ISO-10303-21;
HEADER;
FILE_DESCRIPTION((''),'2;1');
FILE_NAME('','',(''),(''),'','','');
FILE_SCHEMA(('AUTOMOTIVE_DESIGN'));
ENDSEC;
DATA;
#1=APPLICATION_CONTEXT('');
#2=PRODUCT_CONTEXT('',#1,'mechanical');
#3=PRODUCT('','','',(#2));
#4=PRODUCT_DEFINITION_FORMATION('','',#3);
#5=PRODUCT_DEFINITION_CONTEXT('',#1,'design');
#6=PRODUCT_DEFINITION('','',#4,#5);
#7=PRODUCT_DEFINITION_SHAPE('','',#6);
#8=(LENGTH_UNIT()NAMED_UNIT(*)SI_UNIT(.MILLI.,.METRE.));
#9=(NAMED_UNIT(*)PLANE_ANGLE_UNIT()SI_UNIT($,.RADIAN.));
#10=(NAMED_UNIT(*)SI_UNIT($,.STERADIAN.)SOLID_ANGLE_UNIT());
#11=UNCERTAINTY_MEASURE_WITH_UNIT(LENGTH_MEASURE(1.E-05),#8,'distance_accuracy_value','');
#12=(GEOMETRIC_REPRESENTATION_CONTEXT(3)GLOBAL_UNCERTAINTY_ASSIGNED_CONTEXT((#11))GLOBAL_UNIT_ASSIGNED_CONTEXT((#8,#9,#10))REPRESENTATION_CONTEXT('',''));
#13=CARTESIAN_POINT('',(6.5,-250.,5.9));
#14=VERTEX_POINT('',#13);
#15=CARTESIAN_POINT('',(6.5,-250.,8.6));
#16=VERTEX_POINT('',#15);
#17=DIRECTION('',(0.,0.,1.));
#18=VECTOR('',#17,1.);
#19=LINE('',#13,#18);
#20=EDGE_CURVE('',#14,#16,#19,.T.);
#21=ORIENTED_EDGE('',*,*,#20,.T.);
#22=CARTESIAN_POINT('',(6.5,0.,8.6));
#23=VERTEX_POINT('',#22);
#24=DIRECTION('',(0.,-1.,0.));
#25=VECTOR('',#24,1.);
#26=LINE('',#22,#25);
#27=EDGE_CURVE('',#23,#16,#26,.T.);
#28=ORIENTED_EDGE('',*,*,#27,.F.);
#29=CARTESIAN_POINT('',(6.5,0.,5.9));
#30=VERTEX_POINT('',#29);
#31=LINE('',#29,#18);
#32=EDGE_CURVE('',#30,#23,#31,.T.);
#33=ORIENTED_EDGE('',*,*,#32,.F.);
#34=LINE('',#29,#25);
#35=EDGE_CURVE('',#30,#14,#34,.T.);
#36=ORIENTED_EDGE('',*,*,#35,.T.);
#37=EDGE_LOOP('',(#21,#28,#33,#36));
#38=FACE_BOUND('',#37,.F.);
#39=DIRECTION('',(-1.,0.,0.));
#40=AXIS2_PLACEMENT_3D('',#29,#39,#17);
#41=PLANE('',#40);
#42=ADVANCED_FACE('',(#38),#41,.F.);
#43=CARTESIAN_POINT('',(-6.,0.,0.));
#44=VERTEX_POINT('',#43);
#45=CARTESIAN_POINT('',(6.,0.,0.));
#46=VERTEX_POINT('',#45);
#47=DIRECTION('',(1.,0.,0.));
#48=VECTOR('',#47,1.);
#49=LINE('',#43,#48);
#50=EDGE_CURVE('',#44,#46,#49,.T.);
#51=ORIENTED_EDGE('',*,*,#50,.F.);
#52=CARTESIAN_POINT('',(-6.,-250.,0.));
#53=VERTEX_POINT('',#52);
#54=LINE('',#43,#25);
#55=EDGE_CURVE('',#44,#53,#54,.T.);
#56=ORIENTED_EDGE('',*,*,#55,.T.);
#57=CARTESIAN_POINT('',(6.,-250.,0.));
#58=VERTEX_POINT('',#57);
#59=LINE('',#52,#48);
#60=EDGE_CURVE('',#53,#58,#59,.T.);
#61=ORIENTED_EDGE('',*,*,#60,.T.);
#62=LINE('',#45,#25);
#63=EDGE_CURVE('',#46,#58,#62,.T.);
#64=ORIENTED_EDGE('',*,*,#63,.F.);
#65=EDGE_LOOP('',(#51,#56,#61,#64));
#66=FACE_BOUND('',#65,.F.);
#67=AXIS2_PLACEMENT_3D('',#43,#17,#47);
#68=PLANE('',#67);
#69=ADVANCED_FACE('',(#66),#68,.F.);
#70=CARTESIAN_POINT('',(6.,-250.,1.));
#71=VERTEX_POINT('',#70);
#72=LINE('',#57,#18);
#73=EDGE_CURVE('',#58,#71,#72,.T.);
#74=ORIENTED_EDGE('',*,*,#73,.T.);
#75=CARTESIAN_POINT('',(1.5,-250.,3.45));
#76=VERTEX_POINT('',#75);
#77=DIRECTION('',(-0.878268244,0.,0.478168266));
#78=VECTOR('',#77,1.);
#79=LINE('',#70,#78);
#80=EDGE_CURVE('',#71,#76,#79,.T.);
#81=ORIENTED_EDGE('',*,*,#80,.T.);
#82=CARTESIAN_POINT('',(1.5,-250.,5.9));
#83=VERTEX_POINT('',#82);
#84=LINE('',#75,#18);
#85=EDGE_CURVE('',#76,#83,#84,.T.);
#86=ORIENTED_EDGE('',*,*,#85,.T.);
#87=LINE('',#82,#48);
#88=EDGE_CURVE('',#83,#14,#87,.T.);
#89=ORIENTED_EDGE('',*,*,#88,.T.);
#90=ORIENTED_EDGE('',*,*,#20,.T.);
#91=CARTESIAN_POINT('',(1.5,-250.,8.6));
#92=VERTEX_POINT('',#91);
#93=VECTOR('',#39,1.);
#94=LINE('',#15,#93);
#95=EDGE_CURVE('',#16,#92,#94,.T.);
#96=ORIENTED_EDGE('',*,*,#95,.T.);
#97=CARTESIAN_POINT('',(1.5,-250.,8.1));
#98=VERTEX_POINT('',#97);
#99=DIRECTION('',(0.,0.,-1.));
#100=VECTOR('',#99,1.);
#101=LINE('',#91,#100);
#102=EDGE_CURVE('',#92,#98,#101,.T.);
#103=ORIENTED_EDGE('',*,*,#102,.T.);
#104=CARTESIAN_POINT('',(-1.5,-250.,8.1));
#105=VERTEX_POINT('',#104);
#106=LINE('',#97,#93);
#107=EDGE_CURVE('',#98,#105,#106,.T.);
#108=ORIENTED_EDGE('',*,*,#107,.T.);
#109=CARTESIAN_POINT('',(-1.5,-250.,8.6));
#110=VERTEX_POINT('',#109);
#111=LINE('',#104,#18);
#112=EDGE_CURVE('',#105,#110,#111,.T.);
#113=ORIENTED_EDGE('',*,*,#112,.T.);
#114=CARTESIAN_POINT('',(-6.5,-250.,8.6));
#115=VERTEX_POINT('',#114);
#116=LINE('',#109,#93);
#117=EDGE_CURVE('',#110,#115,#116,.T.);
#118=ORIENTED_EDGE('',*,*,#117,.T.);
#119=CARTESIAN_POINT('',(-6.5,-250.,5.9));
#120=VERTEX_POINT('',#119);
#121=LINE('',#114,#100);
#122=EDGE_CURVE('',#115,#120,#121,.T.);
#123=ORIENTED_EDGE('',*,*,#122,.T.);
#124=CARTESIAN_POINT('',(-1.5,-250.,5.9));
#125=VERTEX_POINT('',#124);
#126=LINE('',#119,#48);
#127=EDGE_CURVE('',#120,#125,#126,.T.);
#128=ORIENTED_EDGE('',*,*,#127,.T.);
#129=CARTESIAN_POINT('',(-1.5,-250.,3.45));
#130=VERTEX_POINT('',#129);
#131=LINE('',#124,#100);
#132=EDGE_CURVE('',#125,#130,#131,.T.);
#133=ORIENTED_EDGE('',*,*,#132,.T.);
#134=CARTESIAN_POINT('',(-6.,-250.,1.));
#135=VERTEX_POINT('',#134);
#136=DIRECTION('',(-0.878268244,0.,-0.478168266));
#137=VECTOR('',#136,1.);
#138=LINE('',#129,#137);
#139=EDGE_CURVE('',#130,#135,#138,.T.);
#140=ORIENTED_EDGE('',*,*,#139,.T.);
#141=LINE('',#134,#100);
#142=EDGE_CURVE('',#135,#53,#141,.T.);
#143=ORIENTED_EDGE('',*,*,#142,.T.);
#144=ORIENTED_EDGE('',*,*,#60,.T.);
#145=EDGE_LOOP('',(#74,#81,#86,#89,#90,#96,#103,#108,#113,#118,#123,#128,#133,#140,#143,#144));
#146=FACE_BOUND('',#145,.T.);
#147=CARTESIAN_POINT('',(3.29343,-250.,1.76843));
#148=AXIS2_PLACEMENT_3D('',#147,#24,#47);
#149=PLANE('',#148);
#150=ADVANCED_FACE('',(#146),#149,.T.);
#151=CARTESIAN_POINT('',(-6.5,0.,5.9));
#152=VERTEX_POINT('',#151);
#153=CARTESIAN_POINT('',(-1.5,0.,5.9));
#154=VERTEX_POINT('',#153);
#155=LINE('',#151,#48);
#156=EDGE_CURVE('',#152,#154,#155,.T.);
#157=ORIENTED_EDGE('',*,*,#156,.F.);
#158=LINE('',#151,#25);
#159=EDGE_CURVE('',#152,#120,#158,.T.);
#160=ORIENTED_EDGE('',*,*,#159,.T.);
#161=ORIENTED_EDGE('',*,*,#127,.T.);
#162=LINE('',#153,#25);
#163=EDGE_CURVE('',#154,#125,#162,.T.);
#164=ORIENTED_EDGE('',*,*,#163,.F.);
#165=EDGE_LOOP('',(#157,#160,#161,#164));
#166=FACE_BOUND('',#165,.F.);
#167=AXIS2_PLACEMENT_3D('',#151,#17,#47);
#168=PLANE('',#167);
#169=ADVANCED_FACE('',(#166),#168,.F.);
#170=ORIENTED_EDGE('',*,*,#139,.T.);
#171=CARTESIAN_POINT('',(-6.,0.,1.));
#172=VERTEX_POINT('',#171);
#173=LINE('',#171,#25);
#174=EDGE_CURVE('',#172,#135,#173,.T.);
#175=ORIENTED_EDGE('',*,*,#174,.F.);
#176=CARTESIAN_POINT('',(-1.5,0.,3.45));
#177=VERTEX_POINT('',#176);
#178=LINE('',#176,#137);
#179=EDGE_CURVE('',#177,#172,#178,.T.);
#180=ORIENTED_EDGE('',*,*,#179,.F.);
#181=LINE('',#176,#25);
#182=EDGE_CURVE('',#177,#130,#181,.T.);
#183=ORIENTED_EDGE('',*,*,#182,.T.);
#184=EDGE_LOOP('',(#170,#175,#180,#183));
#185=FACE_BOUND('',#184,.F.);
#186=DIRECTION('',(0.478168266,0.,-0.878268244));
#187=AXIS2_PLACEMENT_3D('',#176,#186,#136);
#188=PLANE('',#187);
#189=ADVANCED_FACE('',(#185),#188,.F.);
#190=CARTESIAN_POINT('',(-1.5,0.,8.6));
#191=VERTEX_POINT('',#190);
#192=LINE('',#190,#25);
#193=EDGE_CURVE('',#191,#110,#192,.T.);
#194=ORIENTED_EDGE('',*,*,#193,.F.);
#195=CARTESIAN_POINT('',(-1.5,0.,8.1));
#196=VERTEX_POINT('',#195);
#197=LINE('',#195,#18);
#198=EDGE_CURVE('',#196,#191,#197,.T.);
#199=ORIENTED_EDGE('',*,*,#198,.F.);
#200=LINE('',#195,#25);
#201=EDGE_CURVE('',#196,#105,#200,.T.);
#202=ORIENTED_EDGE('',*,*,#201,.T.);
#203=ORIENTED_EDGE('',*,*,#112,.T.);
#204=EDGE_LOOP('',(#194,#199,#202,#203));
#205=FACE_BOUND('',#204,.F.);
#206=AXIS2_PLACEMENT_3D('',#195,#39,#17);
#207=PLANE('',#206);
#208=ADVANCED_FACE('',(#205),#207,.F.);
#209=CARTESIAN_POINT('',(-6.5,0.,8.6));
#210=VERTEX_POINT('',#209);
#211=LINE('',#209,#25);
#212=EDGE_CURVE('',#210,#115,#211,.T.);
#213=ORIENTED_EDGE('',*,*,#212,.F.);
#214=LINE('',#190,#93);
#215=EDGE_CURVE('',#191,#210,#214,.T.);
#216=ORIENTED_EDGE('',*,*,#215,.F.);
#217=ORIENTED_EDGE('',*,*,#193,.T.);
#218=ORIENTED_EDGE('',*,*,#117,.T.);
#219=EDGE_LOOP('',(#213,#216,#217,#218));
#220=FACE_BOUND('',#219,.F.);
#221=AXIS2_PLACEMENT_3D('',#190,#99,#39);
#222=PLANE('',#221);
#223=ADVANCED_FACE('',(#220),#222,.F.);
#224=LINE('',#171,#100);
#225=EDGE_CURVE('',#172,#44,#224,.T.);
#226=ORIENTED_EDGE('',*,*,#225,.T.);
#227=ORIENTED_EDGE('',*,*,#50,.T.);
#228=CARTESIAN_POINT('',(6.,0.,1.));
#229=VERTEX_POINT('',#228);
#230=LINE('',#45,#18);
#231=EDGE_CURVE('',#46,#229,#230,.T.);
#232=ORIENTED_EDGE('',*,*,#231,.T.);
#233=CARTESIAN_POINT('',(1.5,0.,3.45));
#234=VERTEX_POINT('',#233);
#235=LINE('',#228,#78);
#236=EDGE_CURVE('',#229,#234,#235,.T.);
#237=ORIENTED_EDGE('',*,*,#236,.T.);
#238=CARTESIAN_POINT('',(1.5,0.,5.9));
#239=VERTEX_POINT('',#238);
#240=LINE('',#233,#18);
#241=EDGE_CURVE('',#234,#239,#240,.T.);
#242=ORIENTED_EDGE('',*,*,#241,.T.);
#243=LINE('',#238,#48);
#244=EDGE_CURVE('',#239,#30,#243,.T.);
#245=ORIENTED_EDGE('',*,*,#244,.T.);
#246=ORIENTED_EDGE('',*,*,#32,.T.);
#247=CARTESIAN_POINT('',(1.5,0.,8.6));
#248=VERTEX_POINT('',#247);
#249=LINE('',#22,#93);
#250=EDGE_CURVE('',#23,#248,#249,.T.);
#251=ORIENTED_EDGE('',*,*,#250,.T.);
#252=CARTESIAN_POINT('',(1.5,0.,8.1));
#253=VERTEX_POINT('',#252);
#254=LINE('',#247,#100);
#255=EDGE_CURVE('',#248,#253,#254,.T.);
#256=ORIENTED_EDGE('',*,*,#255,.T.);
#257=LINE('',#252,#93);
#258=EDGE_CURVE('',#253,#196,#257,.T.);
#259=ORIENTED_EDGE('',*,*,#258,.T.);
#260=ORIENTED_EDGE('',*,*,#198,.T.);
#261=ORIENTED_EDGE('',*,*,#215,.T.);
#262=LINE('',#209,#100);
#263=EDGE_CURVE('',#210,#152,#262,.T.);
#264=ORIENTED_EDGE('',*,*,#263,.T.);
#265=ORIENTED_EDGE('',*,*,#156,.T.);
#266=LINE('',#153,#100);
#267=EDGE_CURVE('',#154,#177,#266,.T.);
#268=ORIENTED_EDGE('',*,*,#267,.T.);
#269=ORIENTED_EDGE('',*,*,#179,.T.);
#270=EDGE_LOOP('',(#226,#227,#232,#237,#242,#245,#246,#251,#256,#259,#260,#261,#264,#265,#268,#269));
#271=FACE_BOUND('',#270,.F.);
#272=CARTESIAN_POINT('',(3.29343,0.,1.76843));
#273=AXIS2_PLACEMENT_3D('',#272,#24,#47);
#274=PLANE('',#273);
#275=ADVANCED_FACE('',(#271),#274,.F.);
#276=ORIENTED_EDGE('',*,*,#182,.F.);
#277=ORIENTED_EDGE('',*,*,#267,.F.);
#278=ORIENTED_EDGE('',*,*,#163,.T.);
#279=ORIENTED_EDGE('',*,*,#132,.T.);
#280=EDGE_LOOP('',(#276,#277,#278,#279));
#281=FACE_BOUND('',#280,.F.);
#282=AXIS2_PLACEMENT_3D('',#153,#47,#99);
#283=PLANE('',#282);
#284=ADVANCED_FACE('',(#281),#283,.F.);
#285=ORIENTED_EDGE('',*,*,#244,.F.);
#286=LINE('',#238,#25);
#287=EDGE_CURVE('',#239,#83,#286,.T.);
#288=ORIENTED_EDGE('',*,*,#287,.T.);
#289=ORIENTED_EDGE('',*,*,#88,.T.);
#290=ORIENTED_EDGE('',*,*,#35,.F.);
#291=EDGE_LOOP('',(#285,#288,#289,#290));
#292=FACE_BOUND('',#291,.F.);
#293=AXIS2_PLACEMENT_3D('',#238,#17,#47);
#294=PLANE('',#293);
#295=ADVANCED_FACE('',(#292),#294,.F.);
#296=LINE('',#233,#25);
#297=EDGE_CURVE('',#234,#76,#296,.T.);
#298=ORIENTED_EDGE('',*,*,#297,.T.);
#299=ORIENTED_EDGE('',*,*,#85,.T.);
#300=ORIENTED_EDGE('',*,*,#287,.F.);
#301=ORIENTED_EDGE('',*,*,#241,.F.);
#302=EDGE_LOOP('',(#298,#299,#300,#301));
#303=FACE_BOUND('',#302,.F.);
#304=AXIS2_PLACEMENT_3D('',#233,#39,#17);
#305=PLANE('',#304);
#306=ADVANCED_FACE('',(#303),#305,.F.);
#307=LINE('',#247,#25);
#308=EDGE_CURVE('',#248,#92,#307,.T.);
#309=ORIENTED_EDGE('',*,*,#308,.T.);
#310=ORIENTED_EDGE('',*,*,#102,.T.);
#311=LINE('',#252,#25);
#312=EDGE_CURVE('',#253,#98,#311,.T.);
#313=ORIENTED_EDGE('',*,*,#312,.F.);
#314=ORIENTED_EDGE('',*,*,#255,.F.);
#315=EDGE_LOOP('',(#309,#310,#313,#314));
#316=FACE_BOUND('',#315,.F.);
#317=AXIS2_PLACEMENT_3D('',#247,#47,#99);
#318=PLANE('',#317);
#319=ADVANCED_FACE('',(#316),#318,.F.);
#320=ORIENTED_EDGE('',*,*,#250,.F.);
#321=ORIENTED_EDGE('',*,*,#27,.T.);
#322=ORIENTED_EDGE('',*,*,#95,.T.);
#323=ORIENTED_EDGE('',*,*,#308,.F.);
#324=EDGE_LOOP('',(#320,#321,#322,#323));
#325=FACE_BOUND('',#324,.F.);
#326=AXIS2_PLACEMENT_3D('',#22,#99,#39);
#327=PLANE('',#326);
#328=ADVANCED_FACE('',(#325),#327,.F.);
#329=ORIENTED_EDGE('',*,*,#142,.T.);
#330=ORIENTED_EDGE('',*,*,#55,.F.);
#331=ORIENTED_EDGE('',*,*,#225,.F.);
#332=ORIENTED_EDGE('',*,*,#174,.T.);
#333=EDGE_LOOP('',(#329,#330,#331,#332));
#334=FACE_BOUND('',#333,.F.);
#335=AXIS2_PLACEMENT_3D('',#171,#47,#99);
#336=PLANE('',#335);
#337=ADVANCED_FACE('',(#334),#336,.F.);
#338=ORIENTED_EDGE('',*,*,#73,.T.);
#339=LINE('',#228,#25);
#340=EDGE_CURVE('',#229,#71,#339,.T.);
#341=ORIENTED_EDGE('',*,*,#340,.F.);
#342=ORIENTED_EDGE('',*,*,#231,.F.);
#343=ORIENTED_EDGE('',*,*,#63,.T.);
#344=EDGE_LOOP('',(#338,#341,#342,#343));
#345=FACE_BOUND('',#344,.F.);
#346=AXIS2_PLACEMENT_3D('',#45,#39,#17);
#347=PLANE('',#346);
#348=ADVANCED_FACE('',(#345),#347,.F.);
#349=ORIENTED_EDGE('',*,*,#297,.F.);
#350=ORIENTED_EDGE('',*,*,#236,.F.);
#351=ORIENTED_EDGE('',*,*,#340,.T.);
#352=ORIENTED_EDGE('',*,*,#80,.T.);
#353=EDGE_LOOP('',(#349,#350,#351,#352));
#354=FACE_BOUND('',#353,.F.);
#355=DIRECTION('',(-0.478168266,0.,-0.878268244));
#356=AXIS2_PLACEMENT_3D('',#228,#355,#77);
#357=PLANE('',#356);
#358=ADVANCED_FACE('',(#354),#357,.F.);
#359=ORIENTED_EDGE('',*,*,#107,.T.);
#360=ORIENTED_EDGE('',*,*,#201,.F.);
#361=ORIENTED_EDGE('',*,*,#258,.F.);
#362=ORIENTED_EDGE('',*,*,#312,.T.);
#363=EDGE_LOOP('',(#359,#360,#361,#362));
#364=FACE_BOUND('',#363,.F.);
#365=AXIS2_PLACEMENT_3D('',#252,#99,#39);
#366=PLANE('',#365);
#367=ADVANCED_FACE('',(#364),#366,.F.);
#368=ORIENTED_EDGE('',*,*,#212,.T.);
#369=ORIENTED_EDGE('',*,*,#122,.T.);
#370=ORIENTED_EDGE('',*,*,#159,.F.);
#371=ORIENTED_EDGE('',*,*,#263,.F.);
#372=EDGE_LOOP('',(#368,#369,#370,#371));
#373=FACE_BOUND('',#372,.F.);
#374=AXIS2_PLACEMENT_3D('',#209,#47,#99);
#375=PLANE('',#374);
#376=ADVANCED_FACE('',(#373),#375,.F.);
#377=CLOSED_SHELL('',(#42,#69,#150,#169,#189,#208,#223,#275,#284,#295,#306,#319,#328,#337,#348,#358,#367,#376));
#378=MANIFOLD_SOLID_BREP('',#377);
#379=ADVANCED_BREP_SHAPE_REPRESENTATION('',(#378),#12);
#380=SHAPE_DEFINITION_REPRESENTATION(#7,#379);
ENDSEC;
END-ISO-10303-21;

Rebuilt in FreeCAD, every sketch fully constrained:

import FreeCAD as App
import Part
import Sketcher

V = App.Vector
Q = App.Units.Quantity


def add_polygon(sketch, points):
    """Adds a closed chain of lines whose ends are joined by coincident constraints."""
    first, n = sketch.GeometryCount, len(points)
    for a, b in zip(points, points[1:] + points[:1]):
        sketch.addGeometry(Part.LineSegment(App.Vector(*a, 0), App.Vector(*b, 0)), False)
    for i in range(n):
        sketch.addConstraint(Sketcher.Constraint("Coincident", first + i, 2, first + (i + 1) % n, 1))

doc = App.newDocument("Part")
params = doc.addObject("Spreadsheet::Sheet", "Params")
for row, (alias, value) in enumerate([
    ("sketch1_width", "5 mm"),
    ("sketch1_width2", "3 mm"),
    ("sketch1_width3", "12 mm"),
    ("sketch1_height", "1 mm"),
    ("sketch1_height2", "2.7 mm"),
    ("pad1_length", "250 mm"),
], start=1):
    params.set(f"A{row}", alias)
    params.set(f"B{row}", "=" + value)
    params.setAlias(f"B{row}", alias)

body = doc.addObject("PartDesign::Body", "Body")

# Sketch on XZ plane
sketch1 = doc.addObject("Sketcher::SketchObject", "Sketch")
body.addObject(sketch1)
sketch1.AttachmentSupport = (doc.XZ_Plane, [""])
sketch1.MapMode = "FlatFace"
add_polygon(sketch1, [(6, 1), (1.5, 3.5), (1.5, 5.9), (6.5, 5.9), (6.5, 8.6), (1.5, 8.6), (1.5, 8.1), (-1.5, 8.1), (-1.5, 8.6), (-6.5, 8.6), (-6.5, 5.9), (-1.5, 5.9), (-1.5, 3.5), (-6, 1), (-6, 0), (6, 0)])  # lines 0-15
sketch1.addConstraint(Sketcher.Constraint("Vertical", 1))
sketch1.addConstraint(Sketcher.Constraint("Horizontal", 2))
sketch1.addConstraint(Sketcher.Constraint("Vertical", 3))
sketch1.addConstraint(Sketcher.Constraint("Horizontal", 4))
sketch1.addConstraint(Sketcher.Constraint("Vertical", 5))
sketch1.addConstraint(Sketcher.Constraint("Horizontal", 6))
sketch1.addConstraint(Sketcher.Constraint("Vertical", 7))
sketch1.addConstraint(Sketcher.Constraint("Horizontal", 8))
sketch1.addConstraint(Sketcher.Constraint("Vertical", 9))
sketch1.addConstraint(Sketcher.Constraint("Horizontal", 10))
sketch1.addConstraint(Sketcher.Constraint("Vertical", 11))
sketch1.addConstraint(Sketcher.Constraint("Vertical", 13))
sketch1.addConstraint(Sketcher.Constraint("Horizontal", 14))
sketch1.addConstraint(Sketcher.Constraint("Vertical", 15))
sketch1.addConstraint(Sketcher.Constraint("Symmetric", 13, 2, 14, 2, -1, 1))
sketch1.addConstraint(Sketcher.Constraint("Symmetric", 4, 2, 7, 2, -2))
sketch1.addConstraint(Sketcher.Constraint("Symmetric", 2, 2, 9, 2, -2))
sketch1.addConstraint(Sketcher.Constraint("Symmetric", 0, 2, 11, 2, -2))
sketch1.addConstraint(Sketcher.Constraint("Horizontal", 12, 2, 15, 2))
sketch1.addConstraint(Sketcher.Constraint("Vertical", 1, 2, 4, 2))
sketch1.addConstraint(Sketcher.Constraint("DistanceX", 2, 1, 2, 2, Q("5 mm")))
sketch1.addConstraint(Sketcher.Constraint("DistanceX", 6, 2, 6, 1, Q("3 mm")))
sketch1.addConstraint(Sketcher.Constraint("DistanceX", 14, 1, 14, 2, Q("12 mm")))
sketch1.addConstraint(Sketcher.Constraint("DistanceY", 13, 2, 13, 1, Q("1 mm")))
sketch1.addConstraint(Sketcher.Constraint("DistanceY", 3, 1, 3, 2, Q("2.7 mm")))
sketch1.addConstraint(Sketcher.Constraint("DistanceY", 5, 2, 5, 1, Q("0.5 mm")))
sketch1.addConstraint(Sketcher.Constraint("DistanceY", 1, 1, 1, 2, Q("2.45 mm")))
sketch1.addConstraint(Sketcher.Constraint("DistanceY", -1, 1, 1, 2, Q("5.9 mm")))
sketch1.setExpression("Constraints[36]", "Params.sketch1_width")
sketch1.setExpression("Constraints[37]", "Params.sketch1_width2")
sketch1.setExpression("Constraints[38]", "Params.sketch1_width3")
sketch1.setExpression("Constraints[39]", "Params.sketch1_height")
sketch1.setExpression("Constraints[40]", "Params.sketch1_height2")
pad1 = doc.addObject("PartDesign::Pad", "Pad")
body.addObject(pad1)
pad1.Profile = sketch1
pad1.setExpression("Length", "Params.pad1_length")

doc.recompute()
